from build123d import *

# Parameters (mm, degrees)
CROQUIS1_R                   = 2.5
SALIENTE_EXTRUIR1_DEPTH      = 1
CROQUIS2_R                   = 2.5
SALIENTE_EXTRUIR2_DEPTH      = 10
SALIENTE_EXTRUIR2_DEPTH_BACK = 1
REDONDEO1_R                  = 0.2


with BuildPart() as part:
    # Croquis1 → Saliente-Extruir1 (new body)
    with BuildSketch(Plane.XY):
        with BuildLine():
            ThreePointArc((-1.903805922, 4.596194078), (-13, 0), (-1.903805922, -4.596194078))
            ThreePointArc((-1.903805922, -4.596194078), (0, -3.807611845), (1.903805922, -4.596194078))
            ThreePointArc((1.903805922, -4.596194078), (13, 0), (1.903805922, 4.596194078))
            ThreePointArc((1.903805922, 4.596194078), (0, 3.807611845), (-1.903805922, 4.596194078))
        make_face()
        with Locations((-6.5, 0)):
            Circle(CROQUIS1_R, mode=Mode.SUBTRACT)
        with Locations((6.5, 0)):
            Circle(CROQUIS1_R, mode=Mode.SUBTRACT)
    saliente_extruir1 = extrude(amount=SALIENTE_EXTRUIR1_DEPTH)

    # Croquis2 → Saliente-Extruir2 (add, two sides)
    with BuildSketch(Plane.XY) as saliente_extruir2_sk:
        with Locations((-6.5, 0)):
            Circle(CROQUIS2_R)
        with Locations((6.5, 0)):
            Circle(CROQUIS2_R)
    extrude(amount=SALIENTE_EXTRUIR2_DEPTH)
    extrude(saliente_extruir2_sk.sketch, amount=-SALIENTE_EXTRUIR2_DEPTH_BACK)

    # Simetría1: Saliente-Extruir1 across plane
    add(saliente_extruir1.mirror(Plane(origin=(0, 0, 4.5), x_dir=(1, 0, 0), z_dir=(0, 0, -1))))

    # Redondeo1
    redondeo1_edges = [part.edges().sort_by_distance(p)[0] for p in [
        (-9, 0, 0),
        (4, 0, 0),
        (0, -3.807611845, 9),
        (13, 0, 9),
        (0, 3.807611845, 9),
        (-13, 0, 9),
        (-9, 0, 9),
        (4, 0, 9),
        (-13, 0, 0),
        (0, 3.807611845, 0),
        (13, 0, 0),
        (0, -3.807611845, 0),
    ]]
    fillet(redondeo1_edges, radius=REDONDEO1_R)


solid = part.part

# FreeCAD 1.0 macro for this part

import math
import FreeCAD as App
import Part
import Sketcher
from FreeCAD import Vector


def edges_at(feature, points):
    """Names of the edges that pass closest to the given points."""
    edges = feature.Shape.Edges
    near = lambda p: min(range(len(edges)), key=lambda i: edges[i].distToShape(Part.Vertex(*p))[0])
    return sorted({f"Edge{near(p) + 1}" for p in points})

doc = App.newDocument("Part")
body = doc.addObject("PartDesign::Body", "Body")

sketch1 = body.newObject("Sketcher::SketchObject", "Sketch")
sketch1.AttachmentSupport = (doc.getObject("XY_Plane"), [""])
sketch1.MapMode = "FlatFace"
sketch1.addGeometry(Part.ArcOfCircle(Part.Circle(Vector(-6.5, 0, 0), Vector(0, 0, 1), 6.5), math.radians(45), math.radians(315)), False)
sketch1.addGeometry(Part.ArcOfCircle(Part.Circle(Vector(0, -6.5, 0), Vector(0, 0, 1), 2.7), math.radians(45), math.radians(135)), False)
sketch1.addGeometry(Part.ArcOfCircle(Part.Circle(Vector(6.5, 0, 0), Vector(0, 0, 1), 6.5), math.radians(-135), math.radians(135)), False)
sketch1.addGeometry(Part.ArcOfCircle(Part.Circle(Vector(0, 6.5, 0), Vector(0, 0, 1), 2.7), math.radians(-135), math.radians(-45)), False)
sketch1.addGeometry(Part.Circle(Vector(-6.5, 0, 0), Vector(0, 0, 1), 2.5), False)
sketch1.addGeometry(Part.Circle(Vector(6.5, 0, 0), Vector(0, 0, 1), 2.5), False)
sketch1.addConstraint(Sketcher.Constraint("Tangent", 0, 2, 1, 2))
sketch1.addConstraint(Sketcher.Constraint("Tangent", 1, 1, 2, 1))
sketch1.addConstraint(Sketcher.Constraint("Tangent", 2, 2, 3, 2))
sketch1.addConstraint(Sketcher.Constraint("Tangent", 3, 1, 0, 1))
sketch1.addConstraint(Sketcher.Constraint("Coincident", 4, 3, 0, 3))
sketch1.addConstraint(Sketcher.Constraint("Coincident", 5, 3, 2, 3))
sketch1.addConstraint(Sketcher.Constraint("Equal", 0, 2))
sketch1.addConstraint(Sketcher.Constraint("Equal", 1, 3))
sketch1.addConstraint(Sketcher.Constraint("Equal", 4, 5))
sketch1.addConstraint(Sketcher.Constraint("Symmetric", 0, 3, 2, 3, -1, 1))
sketch1.addConstraint(Sketcher.Constraint("PointOnObject", 0, 3, -1))
sketch1.addConstraint(Sketcher.Constraint("Diameter", 4, 5.0))
sketch1.addConstraint(Sketcher.Constraint("Radius", 0, 6.5))
sketch1.addConstraint(Sketcher.Constraint("DistanceX", 0, 3, 2, 3, 13.0))
sketch1.addConstraint(Sketcher.Constraint("DistanceY", 1, 3, 3, 3, 13.0))
pad1 = body.newObject("PartDesign::Pad", "Pad")
pad1.Profile = sketch1
pad1.Length = 1

sketch2 = body.newObject("Sketcher::SketchObject", "Sketch001")
sketch2.AttachmentSupport = (doc.getObject("XY_Plane"), [""])
sketch2.MapMode = "FlatFace"
sketch2.addGeometry(Part.Circle(Vector(-6.5, 0, 0), Vector(0, 0, 1), 2.5), False)
sketch2.addGeometry(Part.Circle(Vector(6.5, 0, 0), Vector(0, 0, 1), 2.5), False)
sketch2.addConstraint(Sketcher.Constraint("Equal", 0, 1))
sketch2.addConstraint(Sketcher.Constraint("Symmetric", 0, 3, 1, 3, -1, 1))
sketch2.addConstraint(Sketcher.Constraint("PointOnObject", 0, 3, -1))
sketch2.addConstraint(Sketcher.Constraint("Diameter", 0, 5.0))
sketch2.addConstraint(Sketcher.Constraint("DistanceX", 0, 3, 1, 3, 13.0))
pad2 = body.newObject("PartDesign::Pad", "Pad001")
pad2.Profile = sketch2
pad2.Type = "TwoLengths"
pad2.Length = 10
pad2.Length2 = 1
doc.recompute()

datumplane = body.newObject("PartDesign::Plane", "DatumPlane")
datumplane.AttachmentSupport = (doc.getObject("XY_Plane"), [""])
datumplane.MapMode = "FlatFace"
datumplane.AttachmentOffset = App.Placement(Vector(0, 0, 4.5), App.Rotation())
mirrored = body.newObject("PartDesign::Mirrored", "Mirrored")
mirrored.Originals = [pad1]
mirrored.MirrorPlane = (datumplane, [""])
body.Tip = mirrored
doc.recompute()

fillet = body.newObject("PartDesign::Fillet", "Fillet")
fillet.Base = (mirrored, edges_at(mirrored, [
    (-9, 0, 0),
    (4, 0, 0),
    (0, -3.808, 9),
    (13, 0, 9),
    (0, 3.808, 9),
    (-13, 0, 9),
    (-9, 0, 9),
    (4, 0, 9),
    (-13, 0, 0),
    (0, 3.808, 0),
    (13, 0, 0),
    (0, -3.808, 0),
]))
fillet.Radius = 0.2

doc.recompute()
